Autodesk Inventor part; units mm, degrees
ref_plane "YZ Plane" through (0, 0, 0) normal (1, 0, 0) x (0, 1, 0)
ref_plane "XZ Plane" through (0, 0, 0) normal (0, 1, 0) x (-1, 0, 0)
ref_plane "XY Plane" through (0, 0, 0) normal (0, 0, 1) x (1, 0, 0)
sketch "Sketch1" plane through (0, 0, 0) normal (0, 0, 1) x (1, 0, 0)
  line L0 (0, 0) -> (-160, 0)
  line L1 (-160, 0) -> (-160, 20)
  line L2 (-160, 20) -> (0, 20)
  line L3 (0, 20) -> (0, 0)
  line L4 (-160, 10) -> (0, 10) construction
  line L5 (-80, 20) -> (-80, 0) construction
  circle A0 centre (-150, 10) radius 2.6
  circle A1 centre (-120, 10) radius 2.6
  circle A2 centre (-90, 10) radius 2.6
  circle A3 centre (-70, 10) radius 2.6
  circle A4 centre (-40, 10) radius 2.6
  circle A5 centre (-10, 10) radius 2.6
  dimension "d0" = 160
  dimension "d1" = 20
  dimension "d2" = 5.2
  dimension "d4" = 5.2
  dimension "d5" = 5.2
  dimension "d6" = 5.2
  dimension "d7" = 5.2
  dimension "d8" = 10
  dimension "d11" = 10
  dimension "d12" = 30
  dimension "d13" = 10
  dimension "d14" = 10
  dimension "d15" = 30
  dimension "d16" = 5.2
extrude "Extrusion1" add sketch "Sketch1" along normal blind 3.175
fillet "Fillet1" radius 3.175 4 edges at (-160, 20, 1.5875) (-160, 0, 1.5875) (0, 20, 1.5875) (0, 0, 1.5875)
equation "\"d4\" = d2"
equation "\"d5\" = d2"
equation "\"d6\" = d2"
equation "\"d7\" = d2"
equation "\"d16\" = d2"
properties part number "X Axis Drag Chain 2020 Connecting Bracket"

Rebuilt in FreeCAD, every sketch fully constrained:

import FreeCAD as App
import Part
import Sketcher
from FreeCAD import Vector
Q = App.Units.Quantity


def edges_at(feature, points):
    """Names of the edges that pass closest to the given points."""
    edges = feature.Shape.Edges
    near = lambda p: min(range(len(edges)), key=lambda i: edges[i].distToShape(Part.Vertex(*p))[0])
    return sorted({f"Edge{near(p) + 1}" for p in points})


def add_polygon(sketch, points):
    """Adds a closed chain of lines whose ends are joined by coincident constraints."""
    first, n = sketch.GeometryCount, len(points)
    for a, b in zip(points, points[1:] + points[:1]):
        sketch.addGeometry(Part.LineSegment(App.Vector(*a, 0), App.Vector(*b, 0)), False)
    for i in range(n):
        sketch.addConstraint(Sketcher.Constraint("Coincident", first + i, 2, first + (i + 1) % n, 1))

doc = App.newDocument("Part")
body = doc.addObject("PartDesign::Body", "Body")

sketch1 = doc.addObject("Sketcher::SketchObject", "Sketch")
body.addObject(sketch1)
sketch1.AttachmentSupport = (doc.XY_Plane, [""])
sketch1.MapMode = "FlatFace"
add_polygon(sketch1, [(-160, 0), (0, 0), (0, 20), (-160, 20)])
sketch1.addGeometry(Part.Circle(Vector(-150, 10, 0), Vector(0, 0, 1), 2.6), False)
sketch1.addGeometry(Part.Circle(Vector(-120, 10, 0), Vector(0, 0, 1), 2.6), False)
sketch1.addGeometry(Part.Circle(Vector(-90, 10, 0), Vector(0, 0, 1), 2.6), False)
sketch1.addGeometry(Part.Circle(Vector(-70, 10, 0), Vector(0, 0, 1), 2.6), False)
sketch1.addGeometry(Part.Circle(Vector(-40, 10, 0), Vector(0, 0, 1), 2.6), False)
sketch1.addGeometry(Part.Circle(Vector(-10, 10, 0), Vector(0, 0, 1), 2.6), False)
sketch1.addConstraint([
    Sketcher.Constraint("Horizontal", 0),
    Sketcher.Constraint("Vertical", 1),
    Sketcher.Constraint("Horizontal", 2),
    Sketcher.Constraint("Vertical", 3),
    Sketcher.Constraint("Coincident", 0, 2, -1, 1),
    Sketcher.Constraint("Equal", 4, 5),
    Sketcher.Constraint("Equal", 5, 6),
    Sketcher.Constraint("Equal", 6, 7),
    Sketcher.Constraint("Equal", 7, 8),
    Sketcher.Constraint("Equal", 8, 9),
    Sketcher.Constraint("Horizontal", 4, 3, 5, 3),
    Sketcher.Constraint("Horizontal", 5, 3, 6, 3),
    Sketcher.Constraint("Horizontal", 6, 3, 7, 3),
    Sketcher.Constraint("Horizontal", 7, 3, 8, 3),
    Sketcher.Constraint("Horizontal", 8, 3, 9, 3),
    Sketcher.Constraint("Diameter", 4, Q("5.2 mm")),
    Sketcher.Constraint("DistanceX", 0, 1, 0, 2, Q("160 mm")),
    Sketcher.Constraint("DistanceY", 1, 1, 1, 2, Q("20 mm")),
    Sketcher.Constraint("DistanceY", -1, 1, 4, 3, Q("10 mm")),
    Sketcher.Constraint("DistanceX", 9, 3, -1, 1, Q("10 mm")),
    Sketcher.Constraint("DistanceX", 4, 3, 5, 3, Q("30 mm")),
    Sketcher.Constraint("DistanceX", 5, 3, 6, 3, Q("30 mm")),
    Sketcher.Constraint("DistanceX", 6, 3, 7, 3, Q("20 mm")),
    Sketcher.Constraint("DistanceX", 7, 3, 8, 3, Q("30 mm")),
    Sketcher.Constraint("DistanceX", 8, 3, 9, 3, Q("30 mm")),
])
pad1 = doc.addObject("PartDesign::Pad", "Pad")
body.addObject(pad1)
pad1.Profile = sketch1
pad1.Length = 3.175
doc.recompute()

fillet = doc.addObject("PartDesign::Fillet", "Fillet")
body.addObject(fillet)
fillet.Base = (pad1, edges_at(pad1, [
    (-160, 20, 1.587),
    (-160, 0, 1.587),
    (0, 20, 1.587),
    (0, 0, 1.587),
]))
fillet.Radius = 3.175

doc.recompute()
